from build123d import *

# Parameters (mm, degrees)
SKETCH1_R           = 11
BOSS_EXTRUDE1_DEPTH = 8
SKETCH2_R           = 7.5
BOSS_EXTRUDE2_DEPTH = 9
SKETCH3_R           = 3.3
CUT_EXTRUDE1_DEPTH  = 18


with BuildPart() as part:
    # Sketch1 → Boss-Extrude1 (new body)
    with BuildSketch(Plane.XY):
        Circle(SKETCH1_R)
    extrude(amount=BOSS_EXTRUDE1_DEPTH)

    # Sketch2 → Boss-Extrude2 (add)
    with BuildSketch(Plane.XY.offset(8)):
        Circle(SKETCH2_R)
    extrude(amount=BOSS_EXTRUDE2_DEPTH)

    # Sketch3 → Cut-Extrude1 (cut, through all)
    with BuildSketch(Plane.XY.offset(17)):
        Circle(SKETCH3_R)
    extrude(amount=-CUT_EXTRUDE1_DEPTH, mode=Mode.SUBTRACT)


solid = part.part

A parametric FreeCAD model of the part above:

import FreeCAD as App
import Part
import Sketcher
Q = App.Units.Quantity

doc = App.newDocument("Part")
body = doc.addObject("PartDesign::Body", "Body")

sketch1 = body.newObject("Sketcher::SketchObject", "Sketch")
sketch1.AttachmentSupport = (doc.getObject("XY_Plane"), [""])
sketch1.MapMode = "FlatFace"
sketch1.addGeometry(Part.Circle(App.Vector(0, 0, 0), App.Vector(0, 0, 1), 11), False)
sketch1.addConstraint([
    Sketcher.Constraint("Coincident", 0, 3, -1, 1),
    Sketcher.Constraint("Diameter", 0, Q("22 mm")),
])
pad1 = body.newObject("PartDesign::Pad", "Pad")
pad1.Profile = sketch1
pad1.Length = 8

sketch2 = body.newObject("Sketcher::SketchObject", "Sketch001")
sketch2.AttachmentSupport = (doc.getObject("XY_Plane"), [""])
sketch2.MapMode = "FlatFace"
sketch2.AttachmentOffset = App.Placement(App.Vector(0, 0, 8), App.Rotation())
sketch2.addGeometry(Part.Circle(App.Vector(0, 0, 0), App.Vector(0, 0, 1), 7.5), False)
sketch2.addConstraint([
    Sketcher.Constraint("Coincident", 0, 3, -1, 1),
    Sketcher.Constraint("Diameter", 0, Q("15 mm")),
])
pad2 = body.newObject("PartDesign::Pad", "Pad001")
pad2.Profile = sketch2
pad2.Length = 9

sketch3 = body.newObject("Sketcher::SketchObject", "Sketch002")
sketch3.AttachmentSupport = (doc.getObject("XY_Plane"), [""])
sketch3.MapMode = "FlatFace"
sketch3.AttachmentOffset = App.Placement(App.Vector(0, 0, 17), App.Rotation())
sketch3.addGeometry(Part.Circle(App.Vector(0, 0, 0), App.Vector(0, 0, 1), 3.3), False)
sketch3.addConstraint([
    Sketcher.Constraint("Coincident", 0, 3, -1, 1),
    Sketcher.Constraint("Diameter", 0, Q("6.6 mm")),
])
pocket1 = body.newObject("PartDesign::Pocket", "Pocket")
pocket1.Profile = sketch3
pocket1.Type = "ThroughAll"

doc.recompute()
